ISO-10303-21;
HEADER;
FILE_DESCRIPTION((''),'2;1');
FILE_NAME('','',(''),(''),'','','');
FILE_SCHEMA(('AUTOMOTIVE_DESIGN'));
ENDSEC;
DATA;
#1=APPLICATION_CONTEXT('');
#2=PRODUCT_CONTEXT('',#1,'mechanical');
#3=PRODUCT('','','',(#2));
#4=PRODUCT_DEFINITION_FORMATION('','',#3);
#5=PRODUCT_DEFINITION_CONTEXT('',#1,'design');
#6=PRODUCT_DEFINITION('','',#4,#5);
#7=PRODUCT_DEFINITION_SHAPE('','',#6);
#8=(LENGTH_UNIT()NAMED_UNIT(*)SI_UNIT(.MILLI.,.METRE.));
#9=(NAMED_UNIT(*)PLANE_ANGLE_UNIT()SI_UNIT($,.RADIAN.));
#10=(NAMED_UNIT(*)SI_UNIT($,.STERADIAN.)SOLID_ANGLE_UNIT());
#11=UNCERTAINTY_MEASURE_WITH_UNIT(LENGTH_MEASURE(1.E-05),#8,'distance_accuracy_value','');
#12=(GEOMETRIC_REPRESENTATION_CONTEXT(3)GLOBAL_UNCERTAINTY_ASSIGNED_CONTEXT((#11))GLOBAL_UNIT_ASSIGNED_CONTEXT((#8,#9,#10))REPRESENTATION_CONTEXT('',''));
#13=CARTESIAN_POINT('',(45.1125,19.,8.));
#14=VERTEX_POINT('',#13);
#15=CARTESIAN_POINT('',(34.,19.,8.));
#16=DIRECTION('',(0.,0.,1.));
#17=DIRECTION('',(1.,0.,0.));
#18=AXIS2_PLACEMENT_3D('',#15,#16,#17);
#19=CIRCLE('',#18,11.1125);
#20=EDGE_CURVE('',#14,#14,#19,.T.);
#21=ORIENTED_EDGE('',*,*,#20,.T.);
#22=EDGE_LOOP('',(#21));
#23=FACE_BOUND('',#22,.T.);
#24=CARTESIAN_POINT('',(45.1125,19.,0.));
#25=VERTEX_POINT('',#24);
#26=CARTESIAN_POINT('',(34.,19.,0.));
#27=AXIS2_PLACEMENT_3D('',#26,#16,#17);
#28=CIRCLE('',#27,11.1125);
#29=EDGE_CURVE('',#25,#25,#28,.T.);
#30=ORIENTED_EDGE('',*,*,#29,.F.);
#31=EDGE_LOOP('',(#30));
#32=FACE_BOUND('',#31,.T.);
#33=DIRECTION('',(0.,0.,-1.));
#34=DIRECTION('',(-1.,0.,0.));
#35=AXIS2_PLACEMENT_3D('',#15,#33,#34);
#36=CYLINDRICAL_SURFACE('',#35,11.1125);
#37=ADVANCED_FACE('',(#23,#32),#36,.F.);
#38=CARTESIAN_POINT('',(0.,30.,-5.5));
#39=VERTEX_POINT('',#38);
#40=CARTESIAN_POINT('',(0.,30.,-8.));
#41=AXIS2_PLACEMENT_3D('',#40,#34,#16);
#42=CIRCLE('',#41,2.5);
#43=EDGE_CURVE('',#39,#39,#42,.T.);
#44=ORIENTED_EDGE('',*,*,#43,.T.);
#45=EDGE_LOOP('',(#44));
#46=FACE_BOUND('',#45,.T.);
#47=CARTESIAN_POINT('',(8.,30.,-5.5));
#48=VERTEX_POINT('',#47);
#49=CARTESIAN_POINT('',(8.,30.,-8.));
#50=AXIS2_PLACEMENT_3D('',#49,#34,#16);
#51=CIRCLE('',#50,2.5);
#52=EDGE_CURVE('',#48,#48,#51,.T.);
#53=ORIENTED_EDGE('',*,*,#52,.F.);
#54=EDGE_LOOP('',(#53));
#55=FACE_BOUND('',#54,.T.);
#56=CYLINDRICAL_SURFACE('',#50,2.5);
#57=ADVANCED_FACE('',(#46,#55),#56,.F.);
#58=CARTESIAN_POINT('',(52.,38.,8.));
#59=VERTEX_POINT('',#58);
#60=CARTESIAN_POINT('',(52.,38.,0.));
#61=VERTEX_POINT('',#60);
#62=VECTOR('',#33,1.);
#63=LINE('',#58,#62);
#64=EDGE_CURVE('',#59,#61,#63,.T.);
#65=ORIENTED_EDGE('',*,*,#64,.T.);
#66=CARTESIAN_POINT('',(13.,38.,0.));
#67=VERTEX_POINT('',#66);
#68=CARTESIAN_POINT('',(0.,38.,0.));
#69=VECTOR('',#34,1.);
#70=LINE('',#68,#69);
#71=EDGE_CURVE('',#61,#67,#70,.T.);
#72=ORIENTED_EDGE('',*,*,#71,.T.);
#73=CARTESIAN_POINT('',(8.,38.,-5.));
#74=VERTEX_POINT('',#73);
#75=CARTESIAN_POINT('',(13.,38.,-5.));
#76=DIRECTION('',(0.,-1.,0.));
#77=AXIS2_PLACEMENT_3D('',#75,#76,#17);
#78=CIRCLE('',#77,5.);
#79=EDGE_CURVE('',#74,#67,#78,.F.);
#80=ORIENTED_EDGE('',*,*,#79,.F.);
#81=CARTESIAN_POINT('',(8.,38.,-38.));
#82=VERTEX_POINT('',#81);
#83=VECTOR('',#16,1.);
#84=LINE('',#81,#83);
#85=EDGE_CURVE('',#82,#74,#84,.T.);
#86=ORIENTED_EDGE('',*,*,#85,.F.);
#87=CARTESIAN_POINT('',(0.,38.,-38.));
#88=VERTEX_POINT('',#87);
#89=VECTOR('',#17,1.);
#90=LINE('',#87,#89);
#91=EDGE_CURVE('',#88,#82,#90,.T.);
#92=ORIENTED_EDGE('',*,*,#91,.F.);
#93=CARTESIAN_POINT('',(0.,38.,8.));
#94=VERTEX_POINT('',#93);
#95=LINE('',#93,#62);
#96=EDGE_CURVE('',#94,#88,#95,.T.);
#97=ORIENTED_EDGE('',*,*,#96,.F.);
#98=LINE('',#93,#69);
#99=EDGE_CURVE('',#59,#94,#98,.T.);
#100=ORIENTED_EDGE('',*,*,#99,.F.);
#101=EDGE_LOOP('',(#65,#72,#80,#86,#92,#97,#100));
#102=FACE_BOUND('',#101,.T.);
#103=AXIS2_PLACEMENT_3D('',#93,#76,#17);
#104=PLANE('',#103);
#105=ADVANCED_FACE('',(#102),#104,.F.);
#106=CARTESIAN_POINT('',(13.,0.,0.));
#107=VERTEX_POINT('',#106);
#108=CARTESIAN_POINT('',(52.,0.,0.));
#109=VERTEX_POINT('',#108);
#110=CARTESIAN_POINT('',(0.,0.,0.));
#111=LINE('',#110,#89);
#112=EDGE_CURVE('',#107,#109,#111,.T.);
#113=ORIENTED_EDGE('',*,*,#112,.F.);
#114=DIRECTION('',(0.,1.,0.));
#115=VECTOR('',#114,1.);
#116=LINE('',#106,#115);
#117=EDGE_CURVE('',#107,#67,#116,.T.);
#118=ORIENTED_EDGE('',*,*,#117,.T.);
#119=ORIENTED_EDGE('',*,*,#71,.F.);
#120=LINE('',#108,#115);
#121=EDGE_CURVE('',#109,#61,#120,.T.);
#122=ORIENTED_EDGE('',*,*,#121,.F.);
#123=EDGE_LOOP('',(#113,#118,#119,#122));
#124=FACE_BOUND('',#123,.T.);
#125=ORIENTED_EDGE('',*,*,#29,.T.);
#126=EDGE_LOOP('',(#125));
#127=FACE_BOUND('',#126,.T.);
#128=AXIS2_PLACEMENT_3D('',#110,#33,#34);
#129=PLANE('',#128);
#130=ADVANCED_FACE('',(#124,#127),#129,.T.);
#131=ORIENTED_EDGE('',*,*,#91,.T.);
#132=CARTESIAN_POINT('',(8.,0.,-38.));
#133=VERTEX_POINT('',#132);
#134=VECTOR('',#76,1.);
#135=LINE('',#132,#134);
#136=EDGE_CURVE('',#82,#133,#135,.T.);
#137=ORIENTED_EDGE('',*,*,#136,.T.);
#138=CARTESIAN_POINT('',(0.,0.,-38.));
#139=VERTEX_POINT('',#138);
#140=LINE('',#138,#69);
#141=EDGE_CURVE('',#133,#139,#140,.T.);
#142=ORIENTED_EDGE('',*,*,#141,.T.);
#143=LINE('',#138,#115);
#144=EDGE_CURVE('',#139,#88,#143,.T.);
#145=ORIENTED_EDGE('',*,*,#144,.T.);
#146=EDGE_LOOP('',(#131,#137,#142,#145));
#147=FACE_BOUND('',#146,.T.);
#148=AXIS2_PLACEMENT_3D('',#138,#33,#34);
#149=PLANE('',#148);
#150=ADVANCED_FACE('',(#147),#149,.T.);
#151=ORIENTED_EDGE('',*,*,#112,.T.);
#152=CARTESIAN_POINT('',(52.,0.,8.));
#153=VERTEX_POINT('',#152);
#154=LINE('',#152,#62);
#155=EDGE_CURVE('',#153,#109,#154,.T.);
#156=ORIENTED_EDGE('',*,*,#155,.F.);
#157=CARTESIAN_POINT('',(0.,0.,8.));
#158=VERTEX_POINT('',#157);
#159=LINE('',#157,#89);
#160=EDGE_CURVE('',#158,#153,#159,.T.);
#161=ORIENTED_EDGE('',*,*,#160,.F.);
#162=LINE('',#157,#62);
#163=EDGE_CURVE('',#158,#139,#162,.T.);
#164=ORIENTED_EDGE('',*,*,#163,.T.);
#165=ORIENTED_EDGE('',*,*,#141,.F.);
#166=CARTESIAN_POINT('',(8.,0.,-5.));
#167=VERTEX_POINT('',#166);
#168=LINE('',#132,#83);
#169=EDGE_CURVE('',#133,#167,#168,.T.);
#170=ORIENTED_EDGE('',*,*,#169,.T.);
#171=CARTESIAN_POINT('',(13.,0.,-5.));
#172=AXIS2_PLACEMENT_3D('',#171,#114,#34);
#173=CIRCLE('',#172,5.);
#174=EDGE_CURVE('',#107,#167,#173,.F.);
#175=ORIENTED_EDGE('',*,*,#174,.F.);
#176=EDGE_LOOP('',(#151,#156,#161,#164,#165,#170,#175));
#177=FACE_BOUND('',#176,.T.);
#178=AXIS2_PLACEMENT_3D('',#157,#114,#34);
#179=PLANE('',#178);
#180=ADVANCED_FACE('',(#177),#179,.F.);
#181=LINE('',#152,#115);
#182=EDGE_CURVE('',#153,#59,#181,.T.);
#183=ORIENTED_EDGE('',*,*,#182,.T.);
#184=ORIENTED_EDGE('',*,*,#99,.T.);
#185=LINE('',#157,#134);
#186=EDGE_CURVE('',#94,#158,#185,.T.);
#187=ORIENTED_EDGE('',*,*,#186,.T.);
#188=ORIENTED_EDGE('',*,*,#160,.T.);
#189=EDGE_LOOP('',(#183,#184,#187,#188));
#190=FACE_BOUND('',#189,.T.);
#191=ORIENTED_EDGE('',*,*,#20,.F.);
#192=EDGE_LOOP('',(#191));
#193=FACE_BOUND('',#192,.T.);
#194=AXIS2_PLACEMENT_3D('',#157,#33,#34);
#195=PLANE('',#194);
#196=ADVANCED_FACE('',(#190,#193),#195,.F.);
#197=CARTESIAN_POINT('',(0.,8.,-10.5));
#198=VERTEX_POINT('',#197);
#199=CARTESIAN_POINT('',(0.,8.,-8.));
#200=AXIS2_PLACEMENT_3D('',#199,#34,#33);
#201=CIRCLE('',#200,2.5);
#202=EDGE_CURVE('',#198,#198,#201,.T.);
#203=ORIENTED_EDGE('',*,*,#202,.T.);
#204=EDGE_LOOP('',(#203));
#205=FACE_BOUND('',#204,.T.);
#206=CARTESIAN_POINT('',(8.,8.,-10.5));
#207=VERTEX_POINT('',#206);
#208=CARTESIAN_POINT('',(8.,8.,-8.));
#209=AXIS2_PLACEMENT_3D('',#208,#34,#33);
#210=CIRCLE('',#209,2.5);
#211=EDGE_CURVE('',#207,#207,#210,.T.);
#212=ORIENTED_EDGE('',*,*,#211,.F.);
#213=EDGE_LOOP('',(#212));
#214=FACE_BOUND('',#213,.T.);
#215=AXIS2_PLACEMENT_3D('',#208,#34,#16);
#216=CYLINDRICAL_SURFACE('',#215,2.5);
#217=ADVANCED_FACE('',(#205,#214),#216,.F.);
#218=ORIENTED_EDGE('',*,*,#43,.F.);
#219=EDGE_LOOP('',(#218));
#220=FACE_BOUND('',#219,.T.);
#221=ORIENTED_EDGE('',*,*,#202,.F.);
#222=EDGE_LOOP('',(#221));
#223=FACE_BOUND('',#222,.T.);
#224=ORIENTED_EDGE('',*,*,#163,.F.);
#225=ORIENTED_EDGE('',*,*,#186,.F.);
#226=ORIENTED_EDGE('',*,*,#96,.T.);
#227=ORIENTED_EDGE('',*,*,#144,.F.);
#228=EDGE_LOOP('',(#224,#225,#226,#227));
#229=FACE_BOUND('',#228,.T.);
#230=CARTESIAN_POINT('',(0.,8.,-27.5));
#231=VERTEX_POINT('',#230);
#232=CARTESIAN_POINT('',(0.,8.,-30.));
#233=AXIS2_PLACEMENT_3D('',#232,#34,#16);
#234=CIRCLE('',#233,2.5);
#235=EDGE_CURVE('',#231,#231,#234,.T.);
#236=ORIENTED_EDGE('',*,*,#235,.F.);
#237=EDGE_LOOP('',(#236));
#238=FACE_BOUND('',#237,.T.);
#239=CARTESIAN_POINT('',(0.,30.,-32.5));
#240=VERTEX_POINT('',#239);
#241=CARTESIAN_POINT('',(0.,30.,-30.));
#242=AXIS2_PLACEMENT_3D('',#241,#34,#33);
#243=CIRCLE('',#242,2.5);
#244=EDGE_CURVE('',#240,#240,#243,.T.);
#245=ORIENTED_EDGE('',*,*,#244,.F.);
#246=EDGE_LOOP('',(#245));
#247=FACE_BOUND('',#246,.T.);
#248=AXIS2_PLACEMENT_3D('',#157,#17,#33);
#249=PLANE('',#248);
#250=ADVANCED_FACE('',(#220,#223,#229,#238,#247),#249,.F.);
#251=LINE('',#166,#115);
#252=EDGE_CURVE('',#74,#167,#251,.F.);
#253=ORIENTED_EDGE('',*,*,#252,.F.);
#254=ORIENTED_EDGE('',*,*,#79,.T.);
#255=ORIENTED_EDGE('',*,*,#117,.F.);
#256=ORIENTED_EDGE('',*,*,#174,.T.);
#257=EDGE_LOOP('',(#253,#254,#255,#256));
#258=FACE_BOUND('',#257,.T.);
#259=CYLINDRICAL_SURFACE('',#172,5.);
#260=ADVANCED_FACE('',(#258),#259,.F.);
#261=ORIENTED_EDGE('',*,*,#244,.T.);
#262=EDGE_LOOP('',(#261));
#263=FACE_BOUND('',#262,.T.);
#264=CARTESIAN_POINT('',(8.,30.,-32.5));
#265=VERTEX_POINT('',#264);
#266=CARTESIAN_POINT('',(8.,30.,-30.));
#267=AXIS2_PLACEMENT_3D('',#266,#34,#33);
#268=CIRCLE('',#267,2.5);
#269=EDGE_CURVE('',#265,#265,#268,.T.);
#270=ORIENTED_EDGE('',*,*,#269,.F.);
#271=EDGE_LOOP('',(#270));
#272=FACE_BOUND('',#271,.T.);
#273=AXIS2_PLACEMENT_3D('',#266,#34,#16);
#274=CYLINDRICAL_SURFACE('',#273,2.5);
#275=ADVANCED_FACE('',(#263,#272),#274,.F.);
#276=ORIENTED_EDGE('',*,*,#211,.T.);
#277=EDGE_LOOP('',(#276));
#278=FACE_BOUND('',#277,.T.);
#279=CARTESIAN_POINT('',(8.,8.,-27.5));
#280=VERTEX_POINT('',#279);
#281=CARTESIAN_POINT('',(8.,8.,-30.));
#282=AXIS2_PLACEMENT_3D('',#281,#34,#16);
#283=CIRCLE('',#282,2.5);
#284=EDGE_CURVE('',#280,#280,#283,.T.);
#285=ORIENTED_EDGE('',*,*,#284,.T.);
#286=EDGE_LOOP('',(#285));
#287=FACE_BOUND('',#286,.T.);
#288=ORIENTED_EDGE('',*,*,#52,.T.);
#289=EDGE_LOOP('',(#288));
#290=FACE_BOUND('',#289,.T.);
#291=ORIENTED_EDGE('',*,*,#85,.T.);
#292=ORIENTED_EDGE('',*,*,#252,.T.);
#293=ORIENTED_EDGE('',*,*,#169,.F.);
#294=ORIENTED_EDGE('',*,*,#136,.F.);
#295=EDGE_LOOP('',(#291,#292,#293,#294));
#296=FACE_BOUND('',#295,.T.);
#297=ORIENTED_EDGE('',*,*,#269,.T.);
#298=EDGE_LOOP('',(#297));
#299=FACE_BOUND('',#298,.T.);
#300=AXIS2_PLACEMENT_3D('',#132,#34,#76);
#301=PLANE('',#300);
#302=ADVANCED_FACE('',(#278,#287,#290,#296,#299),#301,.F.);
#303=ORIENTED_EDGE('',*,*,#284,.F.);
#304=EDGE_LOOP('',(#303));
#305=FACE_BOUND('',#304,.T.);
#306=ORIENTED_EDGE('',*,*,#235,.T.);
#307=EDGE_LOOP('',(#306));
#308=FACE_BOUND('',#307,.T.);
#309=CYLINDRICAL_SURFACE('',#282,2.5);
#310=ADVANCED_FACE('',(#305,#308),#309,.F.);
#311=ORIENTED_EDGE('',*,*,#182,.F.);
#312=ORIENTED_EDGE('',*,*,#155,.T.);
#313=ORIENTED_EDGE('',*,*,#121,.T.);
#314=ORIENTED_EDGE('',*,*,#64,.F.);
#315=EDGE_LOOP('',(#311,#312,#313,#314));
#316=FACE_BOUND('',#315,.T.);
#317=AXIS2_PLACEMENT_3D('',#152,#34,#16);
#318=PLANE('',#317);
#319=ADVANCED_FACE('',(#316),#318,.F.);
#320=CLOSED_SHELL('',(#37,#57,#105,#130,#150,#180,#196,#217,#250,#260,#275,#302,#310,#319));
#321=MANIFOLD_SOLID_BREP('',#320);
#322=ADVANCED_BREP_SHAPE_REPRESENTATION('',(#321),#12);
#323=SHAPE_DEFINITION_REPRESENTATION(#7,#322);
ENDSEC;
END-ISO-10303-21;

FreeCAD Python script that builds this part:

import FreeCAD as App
import Part
import Sketcher

V = App.Vector
Q = App.Units.Quantity


def edges_at(feature, points):
    """Names of the edges that pass closest to the given points."""
    edges = feature.Shape.Edges
    near = lambda p: min(range(len(edges)), key=lambda i: edges[i].distToShape(Part.Vertex(*p))[0])
    return sorted({f"Edge{near(p) + 1}" for p in points})


def add_polygon(sketch, points):
    """Adds a closed chain of lines whose ends are joined by coincident constraints."""
    first, n = sketch.GeometryCount, len(points)
    for a, b in zip(points, points[1:] + points[:1]):
        sketch.addGeometry(Part.LineSegment(App.Vector(*a, 0), App.Vector(*b, 0)), False)
    for i in range(n):
        sketch.addConstraint(Sketcher.Constraint("Coincident", first + i, 2, first + (i + 1) % n, 1))

doc = App.newDocument("Part")
body = doc.addObject("PartDesign::Body", "Body")

# Sketch on XY plane
sketch1 = body.newObject("Sketcher::SketchObject", "Sketch")
sketch1.AttachmentSupport = (doc.getObject("XY_Plane"), [""])
sketch1.MapMode = "FlatFace"
add_polygon(sketch1, [(0, 38), (0, 0), (52, 0), (52, 38)])  # lines 0-3
sketch1.addGeometry(Part.Circle(V(34, 19, 0), V(0, 0, 1), 11.1125), False)  # 4
sketch1.addConstraint(Sketcher.Constraint("Vertical", 0))
sketch1.addConstraint(Sketcher.Constraint("Horizontal", 1))
sketch1.addConstraint(Sketcher.Constraint("Vertical", 2))
sketch1.addConstraint(Sketcher.Constraint("Horizontal", 3))
sketch1.addConstraint(Sketcher.Constraint("Coincident", 0, 2, -1, 1))
sketch1.addConstraint(Sketcher.Constraint("DistanceX", 1, 1, 1, 2, Q("52 mm")))
sketch1.addConstraint(Sketcher.Constraint("DistanceY", 0, 2, 0, 1, Q("38 mm")))
sketch1.addConstraint(Sketcher.Constraint("Diameter", 4, Q("22.225 mm")))
sketch1.addConstraint(Sketcher.Constraint("DistanceX", -1, 1, 4, 3, Q("34 mm")))
sketch1.addConstraint(Sketcher.Constraint("DistanceY", -1, 1, 4, 3, Q("19 mm")))
pad1 = body.newObject("PartDesign::Pad", "Pad")
pad1.Profile = sketch1
pad1.Length = 8

# Sketch on XY plane
sketch2 = body.newObject("Sketcher::SketchObject", "Sketch001")
sketch2.AttachmentSupport = (doc.getObject("XY_Plane"), [""])
sketch2.MapMode = "FlatFace"
add_polygon(sketch2, [(8, 38), (8, 0), (0, 0), (0, 38)])  # lines 0-3
sketch2.addConstraint(Sketcher.Constraint("Vertical", 0))
sketch2.addConstraint(Sketcher.Constraint("Horizontal", 1))
sketch2.addConstraint(Sketcher.Constraint("Vertical", 2))
sketch2.addConstraint(Sketcher.Constraint("Horizontal", 3))
sketch2.addConstraint(Sketcher.Constraint("Coincident", 1, 2, -1, 1))
sketch2.addConstraint(Sketcher.Constraint("DistanceX", 1, 2, 1, 1, Q("8 mm")))
sketch2.addConstraint(Sketcher.Constraint("DistanceY", 0, 2, 0, 1, Q("38 mm")))
pad2 = body.newObject("PartDesign::Pad", "Pad001")
pad2.Profile = sketch2
pad2.Length = 38
pad2.Reversed = True
doc.recompute()

fillet = body.newObject("PartDesign::Fillet", "Fillet")
fillet.Base = (pad2, edges_at(pad2, [(8, 19, 0)]))
fillet.Radius = 5

# Sketch on YZ plane
sketch3 = body.newObject("Sketcher::SketchObject", "Sketch002")
sketch3.AttachmentSupport = (doc.getObject("YZ_Plane"), [""])
sketch3.MapMode = "FlatFace"
sketch3.addGeometry(Part.Circle(V(30, -8, 0), V(0, 0, 1), 2.5), False)
sketch3.addGeometry(Part.Circle(V(30, -30, 0), V(0, 0, 1), 2.5), False)
sketch3.addGeometry(Part.Circle(V(8, -8, 0), V(0, 0, 1), 2.5), False)
sketch3.addGeometry(Part.Circle(V(8, -30, 0), V(0, 0, 1), 2.5), False)
sketch3.addConstraint(Sketcher.Constraint("Equal", 0, 1))
sketch3.addConstraint(Sketcher.Constraint("Equal", 1, 2))
sketch3.addConstraint(Sketcher.Constraint("Equal", 2, 3))
sketch3.addConstraint(Sketcher.Constraint("Horizontal", 0, 3, 2, 3))
sketch3.addConstraint(Sketcher.Constraint("Horizontal", 1, 3, 3, 3))
sketch3.addConstraint(Sketcher.Constraint("Vertical", 0, 3, 1, 3))
sketch3.addConstraint(Sketcher.Constraint("Vertical", 2, 3, 3, 3))
sketch3.addConstraint(Sketcher.Constraint("Diameter", 0, Q("5 mm")))
sketch3.addConstraint(Sketcher.Constraint("DistanceX", -1, 1, 0, 3, Q("30 mm")))
sketch3.addConstraint(Sketcher.Constraint("DistanceY", 0, 3, -1, 1, Q("8 mm")))
sketch3.addConstraint(Sketcher.Constraint("DistanceY", 1, 3, -1, 1, Q("30 mm")))
sketch3.addConstraint(Sketcher.Constraint("DistanceX", -1, 1, 2, 3, Q("8 mm")))
pocket1 = body.newObject("PartDesign::Pocket", "Pocket")
pocket1.Profile = sketch3
pocket1.Length = 8
pocket1.Reversed = True

doc.recompute()
